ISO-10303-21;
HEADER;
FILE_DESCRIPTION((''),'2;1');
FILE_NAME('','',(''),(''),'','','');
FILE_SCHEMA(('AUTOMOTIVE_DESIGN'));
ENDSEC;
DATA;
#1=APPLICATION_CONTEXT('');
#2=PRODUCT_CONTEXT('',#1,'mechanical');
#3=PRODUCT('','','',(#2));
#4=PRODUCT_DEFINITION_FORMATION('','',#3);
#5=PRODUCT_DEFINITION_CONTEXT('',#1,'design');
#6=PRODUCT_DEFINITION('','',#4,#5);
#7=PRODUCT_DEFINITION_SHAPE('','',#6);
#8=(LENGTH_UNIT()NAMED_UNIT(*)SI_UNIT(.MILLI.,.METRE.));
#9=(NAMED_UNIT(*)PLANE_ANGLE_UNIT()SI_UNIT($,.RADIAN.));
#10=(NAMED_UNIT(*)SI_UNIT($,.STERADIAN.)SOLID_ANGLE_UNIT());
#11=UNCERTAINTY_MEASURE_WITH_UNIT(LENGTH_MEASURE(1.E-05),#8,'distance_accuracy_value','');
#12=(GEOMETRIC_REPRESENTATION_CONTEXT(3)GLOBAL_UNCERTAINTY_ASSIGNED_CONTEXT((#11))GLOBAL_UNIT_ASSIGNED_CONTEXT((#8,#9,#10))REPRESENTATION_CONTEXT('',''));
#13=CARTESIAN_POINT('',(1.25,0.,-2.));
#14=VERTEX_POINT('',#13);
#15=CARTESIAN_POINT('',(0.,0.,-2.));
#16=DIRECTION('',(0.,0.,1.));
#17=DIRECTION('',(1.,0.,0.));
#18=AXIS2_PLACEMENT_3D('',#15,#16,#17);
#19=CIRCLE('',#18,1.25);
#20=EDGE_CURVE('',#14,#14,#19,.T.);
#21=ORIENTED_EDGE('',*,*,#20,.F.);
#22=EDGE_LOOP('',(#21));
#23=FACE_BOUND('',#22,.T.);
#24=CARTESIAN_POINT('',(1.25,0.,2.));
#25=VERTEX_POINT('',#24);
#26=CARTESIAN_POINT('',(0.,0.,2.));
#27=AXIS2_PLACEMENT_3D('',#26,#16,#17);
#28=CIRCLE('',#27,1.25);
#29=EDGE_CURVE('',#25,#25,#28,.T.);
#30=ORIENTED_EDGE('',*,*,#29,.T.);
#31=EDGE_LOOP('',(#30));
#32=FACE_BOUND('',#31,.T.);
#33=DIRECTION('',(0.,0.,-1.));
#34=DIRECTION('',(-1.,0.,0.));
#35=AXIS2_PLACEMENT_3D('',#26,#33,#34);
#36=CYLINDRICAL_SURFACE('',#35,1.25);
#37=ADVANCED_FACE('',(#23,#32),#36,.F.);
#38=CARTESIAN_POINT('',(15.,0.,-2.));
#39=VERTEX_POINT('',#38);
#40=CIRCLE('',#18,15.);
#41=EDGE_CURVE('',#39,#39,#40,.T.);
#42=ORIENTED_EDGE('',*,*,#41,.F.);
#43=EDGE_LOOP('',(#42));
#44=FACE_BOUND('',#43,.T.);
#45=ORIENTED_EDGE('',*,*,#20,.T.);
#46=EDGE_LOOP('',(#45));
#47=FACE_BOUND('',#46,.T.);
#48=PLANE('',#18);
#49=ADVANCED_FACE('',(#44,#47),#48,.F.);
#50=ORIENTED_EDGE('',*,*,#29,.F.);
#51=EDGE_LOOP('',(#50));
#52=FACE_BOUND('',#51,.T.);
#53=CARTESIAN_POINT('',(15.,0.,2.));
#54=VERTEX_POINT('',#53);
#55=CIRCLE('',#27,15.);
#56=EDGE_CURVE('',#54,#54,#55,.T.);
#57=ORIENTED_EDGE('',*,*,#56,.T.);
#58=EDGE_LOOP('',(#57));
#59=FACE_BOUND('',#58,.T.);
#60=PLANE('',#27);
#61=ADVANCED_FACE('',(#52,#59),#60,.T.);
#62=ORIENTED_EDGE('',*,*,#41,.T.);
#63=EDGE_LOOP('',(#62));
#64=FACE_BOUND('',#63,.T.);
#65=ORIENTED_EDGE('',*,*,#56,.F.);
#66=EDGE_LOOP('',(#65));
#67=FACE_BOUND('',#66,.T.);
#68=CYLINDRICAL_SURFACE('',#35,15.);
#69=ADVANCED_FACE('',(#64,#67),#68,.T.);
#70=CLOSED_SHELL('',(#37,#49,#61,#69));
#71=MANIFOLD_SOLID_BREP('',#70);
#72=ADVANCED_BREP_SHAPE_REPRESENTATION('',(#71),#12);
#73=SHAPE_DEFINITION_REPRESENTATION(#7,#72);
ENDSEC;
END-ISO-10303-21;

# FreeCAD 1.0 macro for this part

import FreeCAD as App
import Part
import Sketcher
Q = App.Units.Quantity

doc = App.newDocument("Part")
body = doc.addObject("PartDesign::Body", "Body")

# Sketch on XY plane
sketch1 = doc.addObject("Sketcher::SketchObject", "Sketch")
body.addObject(sketch1)
sketch1.AttachmentSupport = (doc.XY_Plane, [""])
sketch1.MapMode = "FlatFace"
sketch1.addGeometry(Part.Circle(App.Vector(0, 0, 0), App.Vector(0, 0, 1), 15), False)
sketch1.addGeometry(Part.Circle(App.Vector(0, 0, 0), App.Vector(0, 0, 1), 1.25), False)
sketch1.addConstraint(Sketcher.Constraint("Coincident", 0, 3, -1, 1))
sketch1.addConstraint(Sketcher.Constraint("Coincident", 1, 3, -1, 1))
sketch1.addConstraint(Sketcher.Constraint("Diameter", 0, Q("30 mm")))
sketch1.addConstraint(Sketcher.Constraint("Diameter", 1, Q("2.5 mm")))
pad1 = doc.addObject("PartDesign::Pad", "Pad")
body.addObject(pad1)
pad1.Profile = sketch1
pad1.Length = 4
pad1.Midplane = True

doc.recompute()
